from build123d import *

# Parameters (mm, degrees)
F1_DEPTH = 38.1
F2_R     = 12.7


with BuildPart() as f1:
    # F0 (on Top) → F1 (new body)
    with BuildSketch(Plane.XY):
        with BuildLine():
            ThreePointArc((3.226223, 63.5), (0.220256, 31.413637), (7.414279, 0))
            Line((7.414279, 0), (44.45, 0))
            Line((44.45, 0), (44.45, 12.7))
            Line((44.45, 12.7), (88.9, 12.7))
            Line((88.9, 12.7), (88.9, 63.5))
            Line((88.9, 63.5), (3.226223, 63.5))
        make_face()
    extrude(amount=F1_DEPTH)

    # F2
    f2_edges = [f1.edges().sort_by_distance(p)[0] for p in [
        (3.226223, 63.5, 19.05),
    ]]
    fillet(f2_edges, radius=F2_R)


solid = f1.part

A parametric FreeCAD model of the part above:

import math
import FreeCAD as App
import Part
import Sketcher
from FreeCAD import Vector
Q = App.Units.Quantity


def edges_at(feature, points):
    """Names of the edges that pass closest to the given points."""
    edges = feature.Shape.Edges
    near = lambda p: min(range(len(edges)), key=lambda i: edges[i].distToShape(Part.Vertex(*p))[0])
    return sorted({f"Edge{near(p) + 1}" for p in points})

doc = App.newDocument("Part")
body = doc.addObject("PartDesign::Body", "Body")

# Sketch on XY plane
sketch1 = body.newObject("Sketcher::SketchObject", "Sketch")
sketch1.AttachmentSupport = (doc.getObject("XY_Plane"), [""])
sketch1.MapMode = "FlatFace"
sketch1.addGeometry([
    Part.ArcOfCircle(Part.Circle(Vector(102, 38, 0), Vector(0, 0, 1), 102), math.radians(166), math.radians(202)),  # 0
    Part.LineSegment(Vector(7, 0, 0), Vector(44, 0, 0)),  # 1
    Part.LineSegment(Vector(44, 0, 0), Vector(44, 13, 0)),  # 2
    Part.LineSegment(Vector(44, 13, 0), Vector(89, 13, 0)),  # 3
    Part.LineSegment(Vector(89, 13, 0), Vector(89, 64, 0)),  # 4
    Part.LineSegment(Vector(89, 64, 0), Vector(3, 64, 0)),  # 5
], False)
sketch1.addConstraint([
    Sketcher.Constraint("Coincident", 0, 2, 1, 1),
    Sketcher.Constraint("Coincident", 1, 2, 2, 1),
    Sketcher.Constraint("Coincident", 2, 2, 3, 1),
    Sketcher.Constraint("Coincident", 3, 2, 4, 1),
    Sketcher.Constraint("Coincident", 4, 2, 5, 1),
    Sketcher.Constraint("Coincident", 5, 2, 0, 1),
    Sketcher.Constraint("Horizontal", 1),
    Sketcher.Constraint("Vertical", 2),
    Sketcher.Constraint("Horizontal", 3),
    Sketcher.Constraint("Vertical", 4),
    Sketcher.Constraint("Horizontal", 5),
    Sketcher.Constraint("PointOnObject", 0, 2, -1),
    Sketcher.Constraint("DistanceY", 4, 1, 4, 2, Q("2 in")),
    Sketcher.Constraint("DistanceY", 2, 1, 2, 2, Q("0.5 in")),
    Sketcher.Constraint("DistanceY", 2, 2, 0, 3, Q("1 in")),
    Sketcher.Constraint("DistanceX", 3, 1, 3, 2, Q("1.75 in")),
    Sketcher.Constraint("DistanceX", -1, 1, 3, 2, Q("3.5 in")),
    Sketcher.Constraint("Radius", 0, 101.600007),
    Sketcher.Constraint("DistanceX", 1, 1, 1, 2, 37.035721),
])
pad1 = body.newObject("PartDesign::Pad", "Pad")
pad1.Profile = sketch1
pad1.Length = Q("1.5 in")
doc.recompute()

fillet = body.newObject("PartDesign::Fillet", "Fillet")
fillet.Base = (pad1, edges_at(pad1, [(3.226, 63.5, 19.05)]))
fillet.Radius = Q("0.5 in")

doc.recompute()
